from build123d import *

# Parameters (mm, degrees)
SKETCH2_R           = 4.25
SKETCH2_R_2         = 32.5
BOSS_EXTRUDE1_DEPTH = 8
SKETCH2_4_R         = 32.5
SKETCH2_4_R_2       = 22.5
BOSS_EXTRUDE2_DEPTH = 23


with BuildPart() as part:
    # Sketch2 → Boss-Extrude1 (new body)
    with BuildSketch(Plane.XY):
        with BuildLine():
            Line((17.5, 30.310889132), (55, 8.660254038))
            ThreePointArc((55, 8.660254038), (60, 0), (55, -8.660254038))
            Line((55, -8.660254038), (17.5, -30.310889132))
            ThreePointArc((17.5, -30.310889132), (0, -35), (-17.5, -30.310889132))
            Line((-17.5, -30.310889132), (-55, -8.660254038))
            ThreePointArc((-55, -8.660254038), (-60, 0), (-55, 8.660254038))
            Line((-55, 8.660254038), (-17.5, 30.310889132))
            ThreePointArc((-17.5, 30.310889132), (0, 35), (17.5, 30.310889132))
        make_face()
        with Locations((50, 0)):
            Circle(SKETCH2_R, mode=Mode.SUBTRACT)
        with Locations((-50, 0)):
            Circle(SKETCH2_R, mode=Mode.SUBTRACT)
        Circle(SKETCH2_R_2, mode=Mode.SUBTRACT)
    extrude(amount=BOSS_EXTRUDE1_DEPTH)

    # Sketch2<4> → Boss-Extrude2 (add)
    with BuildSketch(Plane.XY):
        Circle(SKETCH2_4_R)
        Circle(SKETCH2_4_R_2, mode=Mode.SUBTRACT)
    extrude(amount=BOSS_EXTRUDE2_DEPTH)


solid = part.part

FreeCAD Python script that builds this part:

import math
import FreeCAD as App
import Part
import Sketcher
Q = App.Units.Quantity

doc = App.newDocument("Part")
body = doc.addObject("PartDesign::Body", "Body")

sketch1 = doc.addObject("Sketcher::SketchObject", "Sketch")
body.addObject(sketch1)
sketch1.AttachmentSupport = (doc.XY_Plane, [""])
sketch1.MapMode = "FlatFace"
sketch1.addGeometry(Part.LineSegment(App.Vector(55, 8.660254, 0), App.Vector(17.5, 30.310889, 0)), False)
sketch1.addGeometry(Part.ArcOfCircle(Part.Circle(App.Vector(0, 0, 0), App.Vector(0, 0, 1), 35), math.radians(60), math.radians(120)), False)
sketch1.addGeometry(Part.LineSegment(App.Vector(-17.5, 30.310889, 0), App.Vector(-55, 8.660254, 0)), False)
sketch1.addGeometry(Part.ArcOfCircle(Part.Circle(App.Vector(-50, 0, 0), App.Vector(0, 0, 1), 10), math.radians(120), math.radians(240)), False)
sketch1.addGeometry(Part.LineSegment(App.Vector(-55, -8.660254, 0), App.Vector(-17.5, -30.310889, 0)), False)
sketch1.addGeometry(Part.ArcOfCircle(Part.Circle(App.Vector(0, 0, 0), App.Vector(0, 0, 1), 35), math.radians(-120), math.radians(-60)), False)
sketch1.addGeometry(Part.LineSegment(App.Vector(17.5, -30.310889, 0), App.Vector(55, -8.660254, 0)), False)
sketch1.addGeometry(Part.ArcOfCircle(Part.Circle(App.Vector(50, 0, 0), App.Vector(0, 0, 1), 10), math.radians(-60), math.radians(60)), False)
sketch1.addGeometry(Part.Circle(App.Vector(50, 0, 0), App.Vector(0, 0, 1), 4.25), False)
sketch1.addGeometry(Part.Circle(App.Vector(0, 0, 0), App.Vector(0, 0, 1), 32.5), False)
sketch1.addGeometry(Part.Circle(App.Vector(-50, 0, 0), App.Vector(0, 0, 1), 4.25), False)
sketch1.addConstraint(Sketcher.Constraint("Tangent", 0, 2, 1, 1))
sketch1.addConstraint(Sketcher.Constraint("Tangent", 1, 2, 2, 1))
sketch1.addConstraint(Sketcher.Constraint("Tangent", 2, 2, 3, 1))
sketch1.addConstraint(Sketcher.Constraint("Tangent", 3, 2, 4, 1))
sketch1.addConstraint(Sketcher.Constraint("Tangent", 4, 2, 5, 1))
sketch1.addConstraint(Sketcher.Constraint("Tangent", 5, 2, 6, 1))
sketch1.addConstraint(Sketcher.Constraint("Tangent", 6, 2, 7, 1))
sketch1.addConstraint(Sketcher.Constraint("Tangent", 7, 2, 0, 1))
sketch1.addConstraint(Sketcher.Constraint("Coincident", 1, 3, -1, 1))
sketch1.addConstraint(Sketcher.Constraint("Coincident", 5, 3, -1, 1))
sketch1.addConstraint(Sketcher.Constraint("Coincident", 9, 3, -1, 1))
sketch1.addConstraint(Sketcher.Constraint("Coincident", 8, 3, 7, 3))
sketch1.addConstraint(Sketcher.Constraint("Coincident", 10, 3, 3, 3))
sketch1.addConstraint(Sketcher.Constraint("Equal", 1, 5))
sketch1.addConstraint(Sketcher.Constraint("Equal", 3, 7))
sketch1.addConstraint(Sketcher.Constraint("Equal", 8, 10))
sketch1.addConstraint(Sketcher.Constraint("Symmetric", 3, 3, 7, 3, -1, 1))
sketch1.addConstraint(Sketcher.Constraint("PointOnObject", 3, 3, -1))
sketch1.addConstraint(Sketcher.Constraint("Diameter", 9, Q("65 mm")))
sketch1.addConstraint(Sketcher.Constraint("Radius", 1, Q("35 mm")))
sketch1.addConstraint(Sketcher.Constraint("Radius", 3, Q("10 mm")))
sketch1.addConstraint(Sketcher.Constraint("Diameter", 8, Q("8.5 mm")))
sketch1.addConstraint(Sketcher.Constraint("Angle", 0, Q("150 deg")))
pad1 = doc.addObject("PartDesign::Pad", "Pad")
body.addObject(pad1)
pad1.Profile = sketch1
pad1.Length = 8

sketch2 = doc.addObject("Sketcher::SketchObject", "Sketch001")
body.addObject(sketch2)
sketch2.AttachmentSupport = (doc.XY_Plane, [""])
sketch2.MapMode = "FlatFace"
sketch2.addGeometry(Part.Circle(App.Vector(0, 0, 0), App.Vector(0, 0, 1), 32.5), False)
sketch2.addGeometry(Part.Circle(App.Vector(0, 0, 0), App.Vector(0, 0, 1), 22.5), False)
sketch2.addConstraint(Sketcher.Constraint("Coincident", 0, 3, -1, 1))
sketch2.addConstraint(Sketcher.Constraint("Coincident", 1, 3, -1, 1))
sketch2.addConstraint(Sketcher.Constraint("Diameter", 0, Q("65 mm")))
sketch2.addConstraint(Sketcher.Constraint("Diameter", 1, Q("45 mm")))
pad2 = doc.addObject("PartDesign::Pad", "Pad001")
body.addObject(pad2)
pad2.Profile = sketch2
pad2.Length = 23

doc.recompute()
